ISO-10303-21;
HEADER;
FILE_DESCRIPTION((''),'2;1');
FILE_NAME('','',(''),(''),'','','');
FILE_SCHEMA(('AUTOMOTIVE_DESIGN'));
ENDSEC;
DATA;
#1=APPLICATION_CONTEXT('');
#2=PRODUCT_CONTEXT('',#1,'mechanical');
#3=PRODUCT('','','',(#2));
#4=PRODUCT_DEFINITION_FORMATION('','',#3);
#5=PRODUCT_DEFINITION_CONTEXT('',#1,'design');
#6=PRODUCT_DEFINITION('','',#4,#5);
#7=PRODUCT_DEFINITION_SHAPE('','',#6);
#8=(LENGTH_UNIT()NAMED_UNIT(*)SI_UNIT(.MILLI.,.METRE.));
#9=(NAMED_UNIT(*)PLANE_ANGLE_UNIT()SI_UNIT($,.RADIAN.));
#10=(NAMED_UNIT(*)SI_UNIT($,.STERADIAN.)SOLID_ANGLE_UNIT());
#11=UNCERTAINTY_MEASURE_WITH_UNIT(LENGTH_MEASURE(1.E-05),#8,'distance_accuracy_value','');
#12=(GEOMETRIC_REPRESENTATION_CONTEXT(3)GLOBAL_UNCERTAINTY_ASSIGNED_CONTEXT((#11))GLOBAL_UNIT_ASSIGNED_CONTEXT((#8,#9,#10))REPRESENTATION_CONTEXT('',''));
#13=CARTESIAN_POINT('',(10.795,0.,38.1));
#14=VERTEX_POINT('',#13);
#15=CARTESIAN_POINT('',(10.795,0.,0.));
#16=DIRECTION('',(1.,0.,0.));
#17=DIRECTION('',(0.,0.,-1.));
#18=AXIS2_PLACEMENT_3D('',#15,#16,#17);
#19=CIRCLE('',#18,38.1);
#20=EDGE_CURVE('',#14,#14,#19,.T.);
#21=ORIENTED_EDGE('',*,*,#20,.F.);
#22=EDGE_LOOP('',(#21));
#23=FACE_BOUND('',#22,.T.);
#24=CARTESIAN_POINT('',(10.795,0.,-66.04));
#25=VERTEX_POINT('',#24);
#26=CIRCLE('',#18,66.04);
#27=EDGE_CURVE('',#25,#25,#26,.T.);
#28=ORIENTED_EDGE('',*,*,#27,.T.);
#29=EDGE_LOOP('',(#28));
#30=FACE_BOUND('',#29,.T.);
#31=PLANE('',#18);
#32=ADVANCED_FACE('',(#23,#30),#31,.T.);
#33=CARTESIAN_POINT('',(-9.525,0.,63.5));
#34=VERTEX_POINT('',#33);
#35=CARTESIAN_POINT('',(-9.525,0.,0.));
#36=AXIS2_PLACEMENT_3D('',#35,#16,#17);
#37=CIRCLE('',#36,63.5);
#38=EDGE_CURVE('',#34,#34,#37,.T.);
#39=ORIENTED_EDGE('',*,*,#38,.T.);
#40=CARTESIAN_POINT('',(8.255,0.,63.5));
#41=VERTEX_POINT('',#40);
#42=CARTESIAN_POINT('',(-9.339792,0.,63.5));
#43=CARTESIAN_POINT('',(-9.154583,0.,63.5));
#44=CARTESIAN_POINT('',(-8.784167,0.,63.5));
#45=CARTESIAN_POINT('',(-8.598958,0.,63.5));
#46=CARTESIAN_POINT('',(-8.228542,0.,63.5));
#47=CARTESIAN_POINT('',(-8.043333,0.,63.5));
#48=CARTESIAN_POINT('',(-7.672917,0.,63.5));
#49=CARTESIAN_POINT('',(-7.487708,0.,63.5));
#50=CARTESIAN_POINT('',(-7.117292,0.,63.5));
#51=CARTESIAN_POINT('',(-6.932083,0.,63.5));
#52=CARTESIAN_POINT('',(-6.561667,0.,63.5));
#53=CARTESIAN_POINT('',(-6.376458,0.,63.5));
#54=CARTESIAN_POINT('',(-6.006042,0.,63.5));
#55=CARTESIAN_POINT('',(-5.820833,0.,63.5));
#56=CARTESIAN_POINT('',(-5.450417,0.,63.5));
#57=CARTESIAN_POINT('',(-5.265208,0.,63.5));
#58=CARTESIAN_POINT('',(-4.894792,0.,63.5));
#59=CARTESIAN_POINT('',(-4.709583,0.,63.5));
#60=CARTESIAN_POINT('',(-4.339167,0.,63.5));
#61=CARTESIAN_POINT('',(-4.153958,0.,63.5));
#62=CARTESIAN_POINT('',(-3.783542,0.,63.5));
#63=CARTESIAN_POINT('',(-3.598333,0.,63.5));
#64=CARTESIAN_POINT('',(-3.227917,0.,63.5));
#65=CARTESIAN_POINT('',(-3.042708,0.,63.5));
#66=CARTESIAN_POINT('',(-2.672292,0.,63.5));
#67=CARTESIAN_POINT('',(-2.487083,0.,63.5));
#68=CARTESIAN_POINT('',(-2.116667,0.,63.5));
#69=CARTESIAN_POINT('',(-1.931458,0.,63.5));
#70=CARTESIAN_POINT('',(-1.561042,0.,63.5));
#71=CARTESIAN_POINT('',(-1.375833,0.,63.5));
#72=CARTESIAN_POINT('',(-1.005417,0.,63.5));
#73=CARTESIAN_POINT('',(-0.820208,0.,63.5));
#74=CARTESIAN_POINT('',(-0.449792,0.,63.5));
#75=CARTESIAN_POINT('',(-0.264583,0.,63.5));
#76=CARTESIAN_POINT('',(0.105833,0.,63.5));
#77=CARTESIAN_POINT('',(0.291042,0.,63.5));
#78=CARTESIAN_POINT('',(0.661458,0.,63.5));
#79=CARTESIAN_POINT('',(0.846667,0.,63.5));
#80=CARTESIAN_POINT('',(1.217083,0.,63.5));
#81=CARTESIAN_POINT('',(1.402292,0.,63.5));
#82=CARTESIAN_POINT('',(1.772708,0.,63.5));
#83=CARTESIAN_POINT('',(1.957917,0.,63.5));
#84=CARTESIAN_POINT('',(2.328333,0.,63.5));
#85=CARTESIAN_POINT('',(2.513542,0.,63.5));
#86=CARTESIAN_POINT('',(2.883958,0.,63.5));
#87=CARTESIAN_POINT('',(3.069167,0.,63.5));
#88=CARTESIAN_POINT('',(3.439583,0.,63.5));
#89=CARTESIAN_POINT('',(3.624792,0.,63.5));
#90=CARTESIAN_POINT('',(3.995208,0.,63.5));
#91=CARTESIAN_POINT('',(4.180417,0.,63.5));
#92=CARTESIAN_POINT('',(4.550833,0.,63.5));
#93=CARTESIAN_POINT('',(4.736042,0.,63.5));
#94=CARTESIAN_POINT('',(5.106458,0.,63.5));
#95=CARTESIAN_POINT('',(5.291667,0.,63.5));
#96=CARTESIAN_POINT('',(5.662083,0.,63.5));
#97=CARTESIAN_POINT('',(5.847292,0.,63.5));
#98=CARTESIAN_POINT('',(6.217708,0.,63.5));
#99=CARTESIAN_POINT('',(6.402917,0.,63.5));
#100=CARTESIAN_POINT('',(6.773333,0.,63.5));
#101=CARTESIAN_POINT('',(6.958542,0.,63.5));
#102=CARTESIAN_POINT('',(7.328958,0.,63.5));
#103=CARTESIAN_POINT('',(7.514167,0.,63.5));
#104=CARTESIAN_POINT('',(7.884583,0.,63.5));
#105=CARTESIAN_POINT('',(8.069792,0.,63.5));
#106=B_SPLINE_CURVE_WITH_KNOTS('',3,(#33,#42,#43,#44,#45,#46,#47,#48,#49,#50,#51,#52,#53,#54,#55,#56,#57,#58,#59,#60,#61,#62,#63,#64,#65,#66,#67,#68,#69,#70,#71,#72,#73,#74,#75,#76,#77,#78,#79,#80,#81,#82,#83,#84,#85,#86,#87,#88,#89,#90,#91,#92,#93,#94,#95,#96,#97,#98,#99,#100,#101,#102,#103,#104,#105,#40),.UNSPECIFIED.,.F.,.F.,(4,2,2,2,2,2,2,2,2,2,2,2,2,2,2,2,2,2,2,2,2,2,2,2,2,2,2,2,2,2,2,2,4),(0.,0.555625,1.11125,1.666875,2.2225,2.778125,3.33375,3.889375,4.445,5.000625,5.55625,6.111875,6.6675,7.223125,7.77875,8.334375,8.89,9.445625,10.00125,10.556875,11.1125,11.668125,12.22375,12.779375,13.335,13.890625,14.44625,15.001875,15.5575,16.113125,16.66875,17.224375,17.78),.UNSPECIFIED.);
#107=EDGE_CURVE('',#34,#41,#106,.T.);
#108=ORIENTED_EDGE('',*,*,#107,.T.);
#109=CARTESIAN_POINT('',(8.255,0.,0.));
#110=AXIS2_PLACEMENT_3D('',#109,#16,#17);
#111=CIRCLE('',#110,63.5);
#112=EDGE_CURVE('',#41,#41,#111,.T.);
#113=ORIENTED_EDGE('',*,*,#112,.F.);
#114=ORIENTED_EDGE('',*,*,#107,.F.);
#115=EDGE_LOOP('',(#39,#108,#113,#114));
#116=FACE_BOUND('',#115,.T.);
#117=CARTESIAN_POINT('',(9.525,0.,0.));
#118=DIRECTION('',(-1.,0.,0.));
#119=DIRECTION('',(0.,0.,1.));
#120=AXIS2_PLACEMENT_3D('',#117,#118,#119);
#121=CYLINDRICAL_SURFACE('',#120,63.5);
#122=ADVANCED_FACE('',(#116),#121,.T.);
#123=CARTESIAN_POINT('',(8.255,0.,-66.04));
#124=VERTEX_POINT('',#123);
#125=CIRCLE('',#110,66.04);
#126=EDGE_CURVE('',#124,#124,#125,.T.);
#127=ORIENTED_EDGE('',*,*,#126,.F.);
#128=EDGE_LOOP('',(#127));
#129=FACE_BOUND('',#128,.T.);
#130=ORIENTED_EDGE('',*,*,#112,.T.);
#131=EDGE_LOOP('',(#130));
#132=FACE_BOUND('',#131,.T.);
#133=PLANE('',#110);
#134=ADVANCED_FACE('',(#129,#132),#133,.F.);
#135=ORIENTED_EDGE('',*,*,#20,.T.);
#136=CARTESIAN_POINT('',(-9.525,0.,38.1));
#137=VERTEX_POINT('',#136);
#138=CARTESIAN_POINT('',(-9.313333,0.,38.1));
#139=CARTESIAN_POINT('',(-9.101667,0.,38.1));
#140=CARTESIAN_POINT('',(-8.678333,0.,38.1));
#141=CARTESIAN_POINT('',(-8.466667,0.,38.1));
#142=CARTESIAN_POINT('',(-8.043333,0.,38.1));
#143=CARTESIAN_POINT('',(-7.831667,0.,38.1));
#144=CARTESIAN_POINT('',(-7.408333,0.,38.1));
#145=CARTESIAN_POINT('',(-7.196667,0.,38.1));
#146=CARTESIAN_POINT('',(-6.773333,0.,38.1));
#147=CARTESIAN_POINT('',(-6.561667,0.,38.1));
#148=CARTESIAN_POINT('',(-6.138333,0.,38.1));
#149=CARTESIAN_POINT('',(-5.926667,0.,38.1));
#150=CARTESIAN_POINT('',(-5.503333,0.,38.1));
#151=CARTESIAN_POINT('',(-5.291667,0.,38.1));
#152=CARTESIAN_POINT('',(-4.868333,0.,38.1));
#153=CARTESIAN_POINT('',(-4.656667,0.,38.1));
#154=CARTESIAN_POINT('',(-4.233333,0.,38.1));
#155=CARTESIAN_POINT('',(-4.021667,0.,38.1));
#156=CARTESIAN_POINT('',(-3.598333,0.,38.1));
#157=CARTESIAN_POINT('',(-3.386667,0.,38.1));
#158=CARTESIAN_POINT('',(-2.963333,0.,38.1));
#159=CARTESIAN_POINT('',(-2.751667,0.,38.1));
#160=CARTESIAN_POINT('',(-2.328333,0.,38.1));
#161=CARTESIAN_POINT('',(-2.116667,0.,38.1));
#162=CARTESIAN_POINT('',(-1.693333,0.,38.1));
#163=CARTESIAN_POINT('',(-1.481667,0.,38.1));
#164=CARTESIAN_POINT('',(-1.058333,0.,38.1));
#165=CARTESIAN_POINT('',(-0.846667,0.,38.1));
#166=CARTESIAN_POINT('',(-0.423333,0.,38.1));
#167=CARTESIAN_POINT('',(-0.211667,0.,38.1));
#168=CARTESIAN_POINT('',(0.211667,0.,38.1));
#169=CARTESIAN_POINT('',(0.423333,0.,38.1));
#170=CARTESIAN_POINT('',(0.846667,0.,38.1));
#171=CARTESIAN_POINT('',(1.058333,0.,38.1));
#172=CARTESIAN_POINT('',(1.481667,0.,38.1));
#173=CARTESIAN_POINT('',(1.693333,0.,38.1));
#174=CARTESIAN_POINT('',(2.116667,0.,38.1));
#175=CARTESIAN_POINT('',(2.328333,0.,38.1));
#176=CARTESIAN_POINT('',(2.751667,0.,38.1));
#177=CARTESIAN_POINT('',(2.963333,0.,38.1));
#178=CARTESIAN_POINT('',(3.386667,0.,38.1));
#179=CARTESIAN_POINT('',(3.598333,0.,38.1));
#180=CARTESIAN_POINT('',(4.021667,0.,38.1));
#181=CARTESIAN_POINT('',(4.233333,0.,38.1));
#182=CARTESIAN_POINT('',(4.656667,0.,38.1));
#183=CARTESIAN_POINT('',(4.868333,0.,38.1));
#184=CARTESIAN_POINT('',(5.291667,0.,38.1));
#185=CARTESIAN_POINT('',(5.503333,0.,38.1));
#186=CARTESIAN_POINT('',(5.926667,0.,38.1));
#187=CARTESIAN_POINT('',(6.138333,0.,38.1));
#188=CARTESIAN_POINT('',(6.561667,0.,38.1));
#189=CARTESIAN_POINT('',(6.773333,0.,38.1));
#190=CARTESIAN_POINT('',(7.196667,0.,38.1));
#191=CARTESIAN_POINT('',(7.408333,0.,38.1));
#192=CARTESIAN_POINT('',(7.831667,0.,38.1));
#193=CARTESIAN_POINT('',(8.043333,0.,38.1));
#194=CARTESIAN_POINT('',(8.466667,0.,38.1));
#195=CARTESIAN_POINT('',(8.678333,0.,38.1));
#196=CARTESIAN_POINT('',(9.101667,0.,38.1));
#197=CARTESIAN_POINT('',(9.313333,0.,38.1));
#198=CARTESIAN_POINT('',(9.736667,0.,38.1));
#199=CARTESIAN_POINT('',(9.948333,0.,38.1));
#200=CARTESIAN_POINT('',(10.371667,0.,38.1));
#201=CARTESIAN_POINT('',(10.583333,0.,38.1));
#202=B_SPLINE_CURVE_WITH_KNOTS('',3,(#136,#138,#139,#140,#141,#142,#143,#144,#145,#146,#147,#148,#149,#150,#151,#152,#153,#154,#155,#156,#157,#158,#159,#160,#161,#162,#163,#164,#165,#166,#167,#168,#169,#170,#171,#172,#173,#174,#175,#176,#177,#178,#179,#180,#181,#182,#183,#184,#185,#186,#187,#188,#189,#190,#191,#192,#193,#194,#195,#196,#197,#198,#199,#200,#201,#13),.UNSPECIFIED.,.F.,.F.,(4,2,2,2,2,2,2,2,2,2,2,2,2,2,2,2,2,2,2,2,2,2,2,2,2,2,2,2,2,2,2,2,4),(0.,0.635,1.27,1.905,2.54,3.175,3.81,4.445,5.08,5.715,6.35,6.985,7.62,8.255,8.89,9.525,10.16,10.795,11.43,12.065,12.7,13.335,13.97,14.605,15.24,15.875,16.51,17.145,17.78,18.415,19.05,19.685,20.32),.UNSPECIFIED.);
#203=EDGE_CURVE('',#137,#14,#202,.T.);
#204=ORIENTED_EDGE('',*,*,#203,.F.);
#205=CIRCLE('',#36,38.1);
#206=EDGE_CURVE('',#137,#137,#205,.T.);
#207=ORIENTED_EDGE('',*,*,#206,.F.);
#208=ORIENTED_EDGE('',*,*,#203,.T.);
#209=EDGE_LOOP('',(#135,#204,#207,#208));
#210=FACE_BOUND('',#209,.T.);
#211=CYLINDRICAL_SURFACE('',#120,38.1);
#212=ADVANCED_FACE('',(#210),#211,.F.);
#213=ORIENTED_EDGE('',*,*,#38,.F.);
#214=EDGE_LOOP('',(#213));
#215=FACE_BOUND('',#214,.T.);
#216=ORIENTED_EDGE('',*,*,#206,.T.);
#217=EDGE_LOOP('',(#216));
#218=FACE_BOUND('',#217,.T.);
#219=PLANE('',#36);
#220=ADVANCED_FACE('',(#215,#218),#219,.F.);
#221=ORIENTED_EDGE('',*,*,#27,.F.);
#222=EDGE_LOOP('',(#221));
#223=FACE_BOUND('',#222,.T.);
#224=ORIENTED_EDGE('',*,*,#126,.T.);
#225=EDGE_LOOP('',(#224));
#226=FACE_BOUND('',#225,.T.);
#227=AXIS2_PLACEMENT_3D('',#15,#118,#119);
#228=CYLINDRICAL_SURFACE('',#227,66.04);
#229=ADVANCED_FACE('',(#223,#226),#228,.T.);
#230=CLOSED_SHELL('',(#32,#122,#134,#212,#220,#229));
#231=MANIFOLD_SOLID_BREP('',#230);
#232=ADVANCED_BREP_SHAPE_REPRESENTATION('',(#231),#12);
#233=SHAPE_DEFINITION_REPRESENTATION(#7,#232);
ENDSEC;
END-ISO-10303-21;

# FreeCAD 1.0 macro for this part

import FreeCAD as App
import Part
import Sketcher
from FreeCAD import Vector
Q = App.Units.Quantity

doc = App.newDocument("Part")
body = doc.addObject("PartDesign::Body", "Body")

# Sketch on YZ plane
sketch1 = body.newObject("Sketcher::SketchObject", "Sketch")
sketch1.AttachmentSupport = (doc.getObject("YZ_Plane"), [""])
sketch1.MapMode = "FlatFace"
sketch1.addGeometry([
    Part.Circle(Vector(0, 0, 0), Vector(0, 0, 1), 64),
    Part.Circle(Vector(0, 0, 0), Vector(0, 0, 1), 38),
], False)
sketch1.addConstraint([
    Sketcher.Constraint("Coincident", 0, 3, -1, 1),
    Sketcher.Constraint("Coincident", 1, 3, -1, 1),
    Sketcher.Constraint("Diameter", 0, Q("5 in")),
    Sketcher.Constraint("Diameter", 1, Q("3 in")),
])
pad1 = body.newObject("PartDesign::Pad", "Pad")
pad1.Profile = sketch1
pad1.Length = Q("0.75 in")
pad1.Midplane = True

# Sketch on YZ plane
sketch2 = body.newObject("Sketcher::SketchObject", "Sketch001")
sketch2.AttachmentSupport = (doc.getObject("YZ_Plane"), [""])
sketch2.MapMode = "FlatFace"
sketch2.AttachmentOffset = App.Placement(Vector(0, 0, 0.375 * 25.4), App.Rotation())
sketch2.addGeometry([
    Part.Circle(Vector(0, 0, 0), Vector(0, 0, 1), 66),
    Part.Circle(Vector(0, 0, 0), Vector(0, 0, 1), 38),
], False)
sketch2.addConstraint([
    Sketcher.Constraint("Coincident", 0, 3, -1, 1),
    Sketcher.Constraint("Coincident", 1, 3, -1, 1),
    Sketcher.Constraint("Diameter", 1, Q("3 in")),
    Sketcher.Constraint("Diameter", 0, Q("5.2 in")),
])
pad2 = body.newObject("PartDesign::Pad", "Pad001")
pad2.Profile = sketch2
pad2.Length = Q("0.1 in")
pad2.Midplane = True

doc.recompute()
